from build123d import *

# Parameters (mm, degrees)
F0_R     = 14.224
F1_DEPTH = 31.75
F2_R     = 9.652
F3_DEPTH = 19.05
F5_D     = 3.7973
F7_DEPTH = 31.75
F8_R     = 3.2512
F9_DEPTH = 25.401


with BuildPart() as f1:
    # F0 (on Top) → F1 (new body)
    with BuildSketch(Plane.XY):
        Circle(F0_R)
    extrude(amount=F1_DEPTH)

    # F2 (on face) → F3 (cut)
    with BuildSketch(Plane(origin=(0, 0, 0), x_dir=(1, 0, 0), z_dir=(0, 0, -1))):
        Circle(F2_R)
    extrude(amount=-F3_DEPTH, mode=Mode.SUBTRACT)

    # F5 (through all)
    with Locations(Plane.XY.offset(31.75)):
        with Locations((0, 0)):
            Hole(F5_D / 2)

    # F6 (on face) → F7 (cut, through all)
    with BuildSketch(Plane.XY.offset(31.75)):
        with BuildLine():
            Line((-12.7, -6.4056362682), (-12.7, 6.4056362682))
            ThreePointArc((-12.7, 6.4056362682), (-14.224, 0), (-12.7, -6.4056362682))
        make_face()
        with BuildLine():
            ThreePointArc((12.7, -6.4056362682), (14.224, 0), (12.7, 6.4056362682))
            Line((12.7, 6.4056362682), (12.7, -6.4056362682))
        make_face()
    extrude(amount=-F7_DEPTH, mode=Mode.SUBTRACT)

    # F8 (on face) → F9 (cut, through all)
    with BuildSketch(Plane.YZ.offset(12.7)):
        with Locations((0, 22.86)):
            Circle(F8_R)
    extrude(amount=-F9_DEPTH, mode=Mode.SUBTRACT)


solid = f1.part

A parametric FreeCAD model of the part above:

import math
import FreeCAD as App
import Part
import Sketcher

V = App.Vector
Q = App.Units.Quantity

doc = App.newDocument("Part")
params = doc.addObject("Spreadsheet::Sheet", "Params")
for row, (alias, value) in enumerate([
    ("sketch1_diameter", "1.12 in"),
    ("pad1_length", "1.25 in"),
    ("sketch2_diameter", "0.76 in"),
    ("pocket1_length", "0.75 in"),
    ("hole_diameter", "0.1495 in"),
    ("sketch4_radius", "0.56 in"),
    ("sketch5_diameter", "0.256 in"),
], start=1):
    params.set(f"A{row}", alias)
    params.set(f"B{row}", "=" + value)
    params.setAlias(f"B{row}", alias)

body = doc.addObject("PartDesign::Body", "Body")

sketch1 = body.newObject("Sketcher::SketchObject", "Sketch")
sketch1.AttachmentSupport = (doc.getObject("XY_Plane"), [""])
sketch1.MapMode = "FlatFace"
sketch1.addGeometry(Part.Circle(V(0, 0, 0), V(0, 0, 1), 14.224), False)
sketch1.addConstraint([
    Sketcher.Constraint("Coincident", 0, 3, -1, 1),
    Sketcher.Constraint("Diameter", 0, Q("1.12 in")),
])
sketch1.setExpression("Constraints[1]", "Params.sketch1_diameter")
pad1 = body.newObject("PartDesign::Pad", "Pad")
pad1.Profile = sketch1
pad1.setExpression("Length", "Params.pad1_length")

sketch2 = body.newObject("Sketcher::SketchObject", "Sketch001")
sketch2.AttachmentSupport = (doc.getObject("XY_Plane"), [""])
sketch2.MapMode = "FlatFace"
sketch2.addGeometry(Part.Circle(V(0, 0, 0), V(0, 0, 1), 9.652), False)
sketch2.addConstraint([
    Sketcher.Constraint("Coincident", 0, 3, -1, 1),
    Sketcher.Constraint("Diameter", 0, Q("0.76 in")),
])
sketch2.setExpression("Constraints[1]", "Params.sketch2_diameter")
pocket1 = body.newObject("PartDesign::Pocket", "Pocket")
pocket1.Profile = sketch2
pocket1.setExpression("Length", "Params.pocket1_length")
pocket1.Reversed = True

sketch3 = body.newObject("Sketcher::SketchObject", "Sketch002")
sketch3.AttachmentSupport = (doc.getObject("XY_Plane"), [""])
sketch3.MapMode = "FlatFace"
sketch3.AttachmentOffset = App.Placement(V(0, 0, 1.25 * 25.4), App.Rotation())
sketch3.addGeometry(Part.Circle(V(0, 0, 0), V(0, 0, 1), 1.89865), False)
sketch3.addConstraint([
    Sketcher.Constraint("Coincident", 0, 3, -1, 1),
    Sketcher.Constraint("Diameter", 0, Q("0.1495 in")),
])
doc.recompute()
hole = body.newObject("PartDesign::Hole", "Hole")
hole.Profile = sketch3
hole.ThreadType = "None"
hole.setExpression("Diameter", "Params.hole_diameter")
hole.DepthType = "ThroughAll"

sketch4 = body.newObject("Sketcher::SketchObject", "Sketch003")
sketch4.AttachmentSupport = (doc.getObject("XY_Plane"), [""])
sketch4.MapMode = "FlatFace"
sketch4.AttachmentOffset = App.Placement(V(0, 0, 1.25 * 25.4), App.Rotation())
sketch4.addGeometry([
    Part.LineSegment(V(-12.7, -6.405636, 0), V(-12.7, 6.405636, 0)),
    Part.ArcOfCircle(Part.Circle(V(0, 0, 0), V(0, 0, 1), 14.224), math.radians(153.234499), math.radians(206.765501)),
    Part.ArcOfCircle(Part.Circle(V(0, 0, 0), V(0, 0, 1), 14.224), math.radians(-26.765501), math.radians(26.765501)),
    Part.LineSegment(V(12.7, 6.405636, 0), V(12.7, -6.405636, 0)),
], False)
sketch4.addConstraint([
    Sketcher.Constraint("Coincident", 0, 1, 1, 2),
    Sketcher.Constraint("Coincident", 1, 1, 0, 2),
    Sketcher.Constraint("Coincident", 2, 1, 3, 2),
    Sketcher.Constraint("Coincident", 3, 1, 2, 2),
    Sketcher.Constraint("Vertical", 0),
    Sketcher.Constraint("Vertical", 3),
    Sketcher.Constraint("Coincident", 1, 3, -1, 1),
    Sketcher.Constraint("Coincident", 2, 3, -1, 1),
    Sketcher.Constraint("Equal", 1, 2),
    Sketcher.Constraint("Horizontal", 0, 1, 2, 1),
    Sketcher.Constraint("Radius", 1, Q("0.56 in")),
    Sketcher.Constraint("DistanceX", 0, 1, 2, 1, Q("1 in")),
])
sketch4.setExpression("Constraints[10]", "Params.sketch4_radius")
pocket2 = body.newObject("PartDesign::Pocket", "Pocket001")
pocket2.Profile = sketch4
pocket2.Type = "ThroughAll"

sketch5 = body.newObject("Sketcher::SketchObject", "Sketch004")
sketch5.AttachmentSupport = (doc.getObject("YZ_Plane"), [""])
sketch5.MapMode = "FlatFace"
sketch5.AttachmentOffset = App.Placement(V(0, 0, 0.5 * 25.4), App.Rotation())
sketch5.addGeometry(Part.Circle(V(0, 22.86, 0), V(0, 0, 1), 3.2512), False)
sketch5.addConstraint([
    Sketcher.Constraint("PointOnObject", 0, 3, -2),
    Sketcher.Constraint("Diameter", 0, Q("0.256 in")),
    Sketcher.Constraint("DistanceY", -1, 1, 0, 3, Q("0.9 in")),
])
sketch5.setExpression("Constraints[1]", "Params.sketch5_diameter")
pocket3 = body.newObject("PartDesign::Pocket", "Pocket002")
pocket3.Profile = sketch5
pocket3.Type = "ThroughAll"

doc.recompute()
